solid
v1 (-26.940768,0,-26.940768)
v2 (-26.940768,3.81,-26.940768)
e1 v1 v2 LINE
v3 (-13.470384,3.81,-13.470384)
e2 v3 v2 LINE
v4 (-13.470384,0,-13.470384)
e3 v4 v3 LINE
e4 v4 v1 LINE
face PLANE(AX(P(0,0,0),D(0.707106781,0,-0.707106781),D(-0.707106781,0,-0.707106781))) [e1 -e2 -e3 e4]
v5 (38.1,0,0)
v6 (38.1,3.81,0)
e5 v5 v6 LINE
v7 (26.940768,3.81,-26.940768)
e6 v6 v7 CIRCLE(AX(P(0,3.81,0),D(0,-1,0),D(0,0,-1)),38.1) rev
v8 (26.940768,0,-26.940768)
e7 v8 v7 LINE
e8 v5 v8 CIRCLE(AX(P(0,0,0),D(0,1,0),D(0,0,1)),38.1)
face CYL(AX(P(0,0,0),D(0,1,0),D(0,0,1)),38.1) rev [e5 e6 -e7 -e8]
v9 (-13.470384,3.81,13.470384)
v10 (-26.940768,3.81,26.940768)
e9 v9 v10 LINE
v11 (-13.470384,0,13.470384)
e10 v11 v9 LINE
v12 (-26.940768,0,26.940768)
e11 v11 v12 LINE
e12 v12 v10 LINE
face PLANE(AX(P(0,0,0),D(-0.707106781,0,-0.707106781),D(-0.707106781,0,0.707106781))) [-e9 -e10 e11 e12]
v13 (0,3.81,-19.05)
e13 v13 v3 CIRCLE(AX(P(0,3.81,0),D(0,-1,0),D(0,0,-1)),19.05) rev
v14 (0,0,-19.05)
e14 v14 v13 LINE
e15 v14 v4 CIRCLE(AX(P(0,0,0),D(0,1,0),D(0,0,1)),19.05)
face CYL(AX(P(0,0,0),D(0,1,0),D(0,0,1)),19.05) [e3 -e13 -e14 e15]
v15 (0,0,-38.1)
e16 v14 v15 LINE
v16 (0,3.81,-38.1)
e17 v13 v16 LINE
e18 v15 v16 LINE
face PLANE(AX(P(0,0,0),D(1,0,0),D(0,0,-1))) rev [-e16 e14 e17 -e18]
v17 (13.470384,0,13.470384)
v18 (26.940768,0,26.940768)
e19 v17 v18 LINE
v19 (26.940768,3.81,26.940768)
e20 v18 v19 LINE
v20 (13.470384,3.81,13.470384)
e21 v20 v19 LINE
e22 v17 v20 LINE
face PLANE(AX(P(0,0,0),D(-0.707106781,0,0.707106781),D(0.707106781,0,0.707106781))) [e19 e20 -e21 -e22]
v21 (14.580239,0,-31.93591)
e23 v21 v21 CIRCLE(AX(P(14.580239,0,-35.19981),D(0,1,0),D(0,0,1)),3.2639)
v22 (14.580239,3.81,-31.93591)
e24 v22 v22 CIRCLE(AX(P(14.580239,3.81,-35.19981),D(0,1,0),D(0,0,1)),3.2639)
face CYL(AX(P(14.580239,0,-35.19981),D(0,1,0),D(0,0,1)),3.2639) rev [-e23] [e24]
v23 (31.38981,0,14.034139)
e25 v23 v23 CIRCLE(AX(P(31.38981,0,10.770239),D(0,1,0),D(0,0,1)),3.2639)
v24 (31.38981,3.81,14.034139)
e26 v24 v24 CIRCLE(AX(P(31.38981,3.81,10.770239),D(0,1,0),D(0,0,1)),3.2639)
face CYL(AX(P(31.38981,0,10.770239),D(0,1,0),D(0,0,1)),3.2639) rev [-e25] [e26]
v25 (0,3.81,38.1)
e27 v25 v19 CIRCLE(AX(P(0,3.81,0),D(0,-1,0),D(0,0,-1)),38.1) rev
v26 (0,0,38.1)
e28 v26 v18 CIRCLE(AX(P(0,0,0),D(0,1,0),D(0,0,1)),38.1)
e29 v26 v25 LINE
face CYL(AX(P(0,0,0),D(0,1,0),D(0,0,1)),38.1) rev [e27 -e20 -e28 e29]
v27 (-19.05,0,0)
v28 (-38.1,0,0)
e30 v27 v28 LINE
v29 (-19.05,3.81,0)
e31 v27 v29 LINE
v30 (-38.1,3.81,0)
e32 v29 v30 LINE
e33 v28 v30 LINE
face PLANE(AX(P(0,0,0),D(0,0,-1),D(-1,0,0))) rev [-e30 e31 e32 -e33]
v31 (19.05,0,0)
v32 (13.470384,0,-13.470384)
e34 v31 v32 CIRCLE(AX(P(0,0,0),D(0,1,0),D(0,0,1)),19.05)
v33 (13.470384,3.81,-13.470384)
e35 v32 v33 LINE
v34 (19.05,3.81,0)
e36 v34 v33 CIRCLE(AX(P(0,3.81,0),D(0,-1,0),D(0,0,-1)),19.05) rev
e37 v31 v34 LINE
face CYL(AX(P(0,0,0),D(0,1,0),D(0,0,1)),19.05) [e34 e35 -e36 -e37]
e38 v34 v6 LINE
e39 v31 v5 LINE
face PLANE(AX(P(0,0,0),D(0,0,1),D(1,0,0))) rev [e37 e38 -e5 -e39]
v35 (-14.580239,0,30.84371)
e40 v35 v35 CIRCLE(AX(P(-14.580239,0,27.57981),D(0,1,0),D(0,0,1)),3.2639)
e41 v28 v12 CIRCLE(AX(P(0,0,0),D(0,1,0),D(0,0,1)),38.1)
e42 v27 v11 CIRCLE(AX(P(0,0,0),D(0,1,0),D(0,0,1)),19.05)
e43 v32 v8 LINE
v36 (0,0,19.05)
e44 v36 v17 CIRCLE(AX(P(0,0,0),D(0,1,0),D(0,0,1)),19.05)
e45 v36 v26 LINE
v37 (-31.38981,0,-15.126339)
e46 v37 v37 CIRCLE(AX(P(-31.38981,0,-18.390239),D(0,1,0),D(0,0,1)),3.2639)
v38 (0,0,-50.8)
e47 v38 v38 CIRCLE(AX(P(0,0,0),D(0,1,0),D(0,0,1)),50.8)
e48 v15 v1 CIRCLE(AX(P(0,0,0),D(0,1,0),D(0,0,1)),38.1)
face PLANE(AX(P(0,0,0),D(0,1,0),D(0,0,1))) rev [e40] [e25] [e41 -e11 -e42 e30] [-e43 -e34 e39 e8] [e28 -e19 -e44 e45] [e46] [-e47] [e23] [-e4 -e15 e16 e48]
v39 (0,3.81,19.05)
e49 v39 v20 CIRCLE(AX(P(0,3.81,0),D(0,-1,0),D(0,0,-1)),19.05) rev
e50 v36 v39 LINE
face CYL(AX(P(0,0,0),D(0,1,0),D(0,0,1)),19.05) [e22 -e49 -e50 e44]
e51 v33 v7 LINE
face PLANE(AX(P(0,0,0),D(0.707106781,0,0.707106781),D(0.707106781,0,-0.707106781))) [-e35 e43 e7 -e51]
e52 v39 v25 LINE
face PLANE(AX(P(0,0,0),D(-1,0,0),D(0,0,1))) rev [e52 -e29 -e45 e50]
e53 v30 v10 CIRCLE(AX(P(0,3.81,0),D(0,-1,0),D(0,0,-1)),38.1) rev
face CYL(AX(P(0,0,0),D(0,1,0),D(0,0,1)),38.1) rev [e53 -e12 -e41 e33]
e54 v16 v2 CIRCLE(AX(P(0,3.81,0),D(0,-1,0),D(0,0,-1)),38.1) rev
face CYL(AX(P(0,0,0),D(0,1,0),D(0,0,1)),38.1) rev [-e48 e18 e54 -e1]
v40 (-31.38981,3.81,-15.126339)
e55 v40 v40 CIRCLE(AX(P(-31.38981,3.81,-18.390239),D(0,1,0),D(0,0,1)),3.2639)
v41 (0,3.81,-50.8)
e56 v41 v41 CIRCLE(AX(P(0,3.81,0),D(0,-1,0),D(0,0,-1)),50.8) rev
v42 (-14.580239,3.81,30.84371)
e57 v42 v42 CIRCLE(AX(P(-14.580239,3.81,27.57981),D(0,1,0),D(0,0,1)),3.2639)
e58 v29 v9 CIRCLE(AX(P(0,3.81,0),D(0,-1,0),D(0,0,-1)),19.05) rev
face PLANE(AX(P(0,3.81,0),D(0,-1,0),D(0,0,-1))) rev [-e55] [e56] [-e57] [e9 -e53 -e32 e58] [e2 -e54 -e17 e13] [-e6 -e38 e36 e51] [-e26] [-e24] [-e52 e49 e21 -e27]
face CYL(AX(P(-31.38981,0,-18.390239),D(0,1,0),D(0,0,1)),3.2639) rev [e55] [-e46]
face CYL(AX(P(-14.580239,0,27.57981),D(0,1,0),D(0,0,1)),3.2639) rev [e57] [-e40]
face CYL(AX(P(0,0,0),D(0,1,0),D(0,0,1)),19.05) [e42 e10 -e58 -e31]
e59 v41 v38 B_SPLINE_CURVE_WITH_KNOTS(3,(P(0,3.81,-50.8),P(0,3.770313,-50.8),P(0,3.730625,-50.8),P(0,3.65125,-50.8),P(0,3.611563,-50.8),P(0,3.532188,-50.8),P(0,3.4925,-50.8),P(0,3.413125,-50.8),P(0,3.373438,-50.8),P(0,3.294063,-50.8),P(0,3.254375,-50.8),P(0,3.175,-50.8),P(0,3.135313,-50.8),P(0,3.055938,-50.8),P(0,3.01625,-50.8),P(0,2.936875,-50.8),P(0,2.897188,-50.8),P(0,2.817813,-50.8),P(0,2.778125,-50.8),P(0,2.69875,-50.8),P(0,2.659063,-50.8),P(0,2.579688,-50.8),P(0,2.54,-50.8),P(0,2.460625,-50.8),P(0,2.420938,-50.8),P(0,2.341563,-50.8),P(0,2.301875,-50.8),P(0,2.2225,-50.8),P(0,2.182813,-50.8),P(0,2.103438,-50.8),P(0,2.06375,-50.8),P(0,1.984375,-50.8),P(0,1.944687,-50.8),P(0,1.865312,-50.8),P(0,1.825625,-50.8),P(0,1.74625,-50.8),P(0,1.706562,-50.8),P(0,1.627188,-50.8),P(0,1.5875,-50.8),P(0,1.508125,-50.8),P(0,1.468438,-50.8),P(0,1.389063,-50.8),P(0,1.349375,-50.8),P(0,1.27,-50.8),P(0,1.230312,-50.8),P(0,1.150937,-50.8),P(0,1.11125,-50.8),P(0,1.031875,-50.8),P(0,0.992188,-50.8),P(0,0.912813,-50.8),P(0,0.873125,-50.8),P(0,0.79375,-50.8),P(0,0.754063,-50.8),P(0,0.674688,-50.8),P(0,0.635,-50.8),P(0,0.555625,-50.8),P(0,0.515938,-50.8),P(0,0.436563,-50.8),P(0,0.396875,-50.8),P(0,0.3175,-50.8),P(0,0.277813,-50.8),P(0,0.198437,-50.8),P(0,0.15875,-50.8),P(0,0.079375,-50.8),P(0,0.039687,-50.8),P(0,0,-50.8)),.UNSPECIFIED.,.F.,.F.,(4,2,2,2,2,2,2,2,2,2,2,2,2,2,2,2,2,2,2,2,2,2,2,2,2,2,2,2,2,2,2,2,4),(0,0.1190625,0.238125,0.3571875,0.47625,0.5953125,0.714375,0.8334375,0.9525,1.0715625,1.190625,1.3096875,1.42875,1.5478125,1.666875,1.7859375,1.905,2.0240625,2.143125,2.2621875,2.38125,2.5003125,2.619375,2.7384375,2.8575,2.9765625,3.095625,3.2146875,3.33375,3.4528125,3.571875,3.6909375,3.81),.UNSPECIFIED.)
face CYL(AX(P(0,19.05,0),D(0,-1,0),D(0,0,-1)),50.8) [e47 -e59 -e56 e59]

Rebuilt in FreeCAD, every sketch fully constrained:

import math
import FreeCAD as App
import Part
import Sketcher
Q = App.Units.Quantity


def add_polygon(sketch, points):
    """Adds a closed chain of lines whose ends are joined by coincident constraints."""
    first, n = sketch.GeometryCount, len(points)
    for a, b in zip(points, points[1:] + points[:1]):
        sketch.addGeometry(Part.LineSegment(App.Vector(*a, 0), App.Vector(*b, 0)), False)
    for i in range(n):
        sketch.addConstraint(Sketcher.Constraint("Coincident", first + i, 2, first + (i + 1) % n, 1))

doc = App.newDocument("Part")
body = doc.addObject("PartDesign::Body", "Body")

sketch1 = body.newObject("Sketcher::SketchObject", "Sketch")
sketch1.AttachmentSupport = (doc.getObject("XZ_Plane"), [""])
sketch1.MapMode = "FlatFace"
sketch1.addGeometry(Part.Circle(App.Vector(0, 0, 0), App.Vector(0, 0, 1), 51), False)
sketch1.addConstraint([
    Sketcher.Constraint("Coincident", 0, 3, -1, 1),
    Sketcher.Constraint("Diameter", 0, Q("4 in")),
])
pad1 = body.newObject("PartDesign::Pad", "Pad")
pad1.Profile = sketch1
pad1.Length = Q("0.75 in")
pad1.Reversed = True

sketch2 = body.newObject("Sketcher::SketchObject", "Sketch001")
sketch2.AttachmentSupport = (doc.getObject("XZ_Plane"), [""])
sketch2.MapMode = "FlatFace"
sketch2.AttachmentOffset = App.Placement(App.Vector(0, 0, -0.75 * 25.4), App.Rotation())
add_polygon(sketch2, [(4, -6), (-4, -6), (-7, 0), (-4, 6), (4, 6), (7, 0)])
sketch2.addConstraint([
    Sketcher.Constraint("Horizontal", 0),
    Sketcher.Constraint("Horizontal", 3),
    Sketcher.Constraint("Symmetric", 0, 2, 3, 2, -1, 1),
    Sketcher.Constraint("Symmetric", 1, 2, 4, 2, -1, 1),
    Sketcher.Constraint("PointOnObject", 1, 2, -1),
    Sketcher.Constraint("Parallel", 2, 5),
    Sketcher.Constraint("Vertical", 0, 2, 2, 2),
    Sketcher.Constraint("Angle", 1, Q("120 deg")),
    Sketcher.Constraint("DistanceY", 0, 2, -1, 1, Q("0.24 in")),
    Sketcher.Constraint("DistanceX", 0, 2, 0, 1, 7.039054),
])
pocket1 = body.newObject("PartDesign::Pocket", "Pocket")
pocket1.Profile = sketch2
pocket1.Length = Q("0.6 in")
pocket1.Reversed = True

sketch3 = body.newObject("Sketcher::SketchObject", "Sketch002")
sketch3.AttachmentSupport = (doc.getObject("XZ_Plane"), [""])
sketch3.MapMode = "FlatFace"
sketch3.AttachmentOffset = App.Placement(App.Vector(0, 0, -0.15 * 25.4), App.Rotation())
sketch3.addGeometry(Part.Circle(App.Vector(0, 0, 0), App.Vector(0, 0, 1), 4.1), False)
sketch3.addConstraint([
    Sketcher.Constraint("Coincident", 0, 3, -1, 1),
    Sketcher.Constraint("Diameter", 0, Q("0.32 in")),
])
pocket2 = body.newObject("PartDesign::Pocket", "Pocket001")
pocket2.Profile = sketch3
pocket2.Type = "ThroughAll"
pocket2.Reversed = True

sketch4 = body.newObject("Sketcher::SketchObject", "Sketch003")
sketch4.AttachmentSupport = (doc.getObject("XZ_Plane"), [""])
sketch4.MapMode = "FlatFace"
sketch4.AttachmentOffset = App.Placement(App.Vector(0, 0, -0.75 * 25.4), App.Rotation())
sketch4.addGeometry([
    Part.ArcOfCircle(Part.Circle(App.Vector(0, 0, 0), App.Vector(0, 0, 1), 19), math.radians(-135), math.radians(-90)),
    Part.LineSegment(App.Vector(0, -19, 0), App.Vector(0, -38, 0)),
    Part.ArcOfCircle(Part.Circle(App.Vector(0, 0, 0), App.Vector(0, 0, 1), 38), math.radians(-135), math.radians(-90)),
    Part.LineSegment(App.Vector(-27, -27, 0), App.Vector(-13, -13, 0)),
    Part.LineSegment(App.Vector(27, -27, 0), App.Vector(13, -13, 0)),
    Part.ArcOfCircle(Part.Circle(App.Vector(0, 0, 0), App.Vector(0, 0, 1), 19), math.radians(-45), math.radians(0)),
    Part.LineSegment(App.Vector(19, 0, 0), App.Vector(38, 0, 0)),
    Part.ArcOfCircle(Part.Circle(App.Vector(0, 0, 0), App.Vector(0, 0, 1), 38), math.radians(-45), math.radians(0)),
    Part.LineSegment(App.Vector(27, 27, 0), App.Vector(13, 13, 0)),
    Part.ArcOfCircle(Part.Circle(App.Vector(0, 0, 0), App.Vector(0, 0, 1), 19), math.radians(45), math.radians(90)),
    Part.LineSegment(App.Vector(0, 19, 0), App.Vector(0, 38, 0)),
    Part.ArcOfCircle(Part.Circle(App.Vector(0, 0, 0), App.Vector(0, 0, 1), 38), math.radians(45), math.radians(90)),
    Part.LineSegment(App.Vector(-27, 27, 0), App.Vector(-13, 13, 0)),
    Part.ArcOfCircle(Part.Circle(App.Vector(0, 0, 0), App.Vector(0, 0, 1), 19), math.radians(135), math.radians(180)),
    Part.LineSegment(App.Vector(-19, 0, 0), App.Vector(-38, 0, 0)),
    Part.ArcOfCircle(Part.Circle(App.Vector(0, 0, 0), App.Vector(0, 0, 1), 38), math.radians(135), math.radians(180)),
], False)
sketch4.addConstraint([
    Sketcher.Constraint("Coincident", 0, 2, 1, 1),
    Sketcher.Constraint("Coincident", 1, 2, 2, 2),
    Sketcher.Constraint("Coincident", 2, 1, 3, 1),
    Sketcher.Constraint("Coincident", 3, 2, 0, 1),
    Sketcher.Constraint("Coincident", 4, 2, 5, 1),
    Sketcher.Constraint("Coincident", 5, 2, 6, 1),
    Sketcher.Constraint("Coincident", 6, 2, 7, 2),
    Sketcher.Constraint("Coincident", 7, 1, 4, 1),
    Sketcher.Constraint("Coincident", 8, 2, 9, 1),
    Sketcher.Constraint("Coincident", 9, 2, 10, 1),
    Sketcher.Constraint("Coincident", 10, 2, 11, 2),
    Sketcher.Constraint("Coincident", 11, 1, 8, 1),
    Sketcher.Constraint("Coincident", 12, 2, 13, 1),
    Sketcher.Constraint("Coincident", 13, 2, 14, 1),
    Sketcher.Constraint("Coincident", 14, 2, 15, 2),
    Sketcher.Constraint("Coincident", 15, 1, 12, 1),
    Sketcher.Constraint("Vertical", 1),
    Sketcher.Constraint("Horizontal", 6),
    Sketcher.Constraint("Vertical", 10),
    Sketcher.Constraint("Horizontal", 14),
    Sketcher.Constraint("Coincident", 0, 3, -1, 1),
    Sketcher.Constraint("Coincident", 2, 3, -1, 1),
    Sketcher.Constraint("Coincident", 5, 3, -1, 1),
    Sketcher.Constraint("Coincident", 7, 3, -1, 1),
    Sketcher.Constraint("Coincident", 9, 3, -1, 1),
    Sketcher.Constraint("Coincident", 11, 3, -1, 1),
    Sketcher.Constraint("Coincident", 13, 3, -1, 1),
    Sketcher.Constraint("Coincident", 15, 3, -1, 1),
    Sketcher.Constraint("Equal", 0, 5),
    Sketcher.Constraint("Equal", 2, 7),
    Sketcher.Constraint("Equal", 5, 9),
    Sketcher.Constraint("Equal", 7, 11),
    Sketcher.Constraint("Equal", 9, 13),
    Sketcher.Constraint("Equal", 11, 15),
    Sketcher.Constraint("PointOnObject", 0, 2, -2),
    Sketcher.Constraint("PointOnObject", 5, 2, -1),
    Sketcher.Constraint("PointOnObject", 9, 2, -2),
    Sketcher.Constraint("PointOnObject", 13, 2, -1),
    Sketcher.Constraint("Perpendicular", 3, 4),
    Sketcher.Constraint("Perpendicular", 4, 8),
    Sketcher.Constraint("Perpendicular", 8, 12),
    Sketcher.Constraint("Horizontal", 3, 2, 4, 2),
    Sketcher.Constraint("Horizontal", 2, 1, 7, 1),
    Sketcher.Constraint("Horizontal", 8, 2, 12, 2),
    Sketcher.Constraint("Vertical", 4, 2, 8, 2),
    Sketcher.Constraint("Radius", 2, Q("1.5 in")),
    Sketcher.Constraint("Radius", 0, Q("0.75 in")),
    Sketcher.Constraint("DistanceX", 2, 1, -1, 1, 26.940768),
])
pocket3 = body.newObject("PartDesign::Pocket", "Pocket002")
pocket3.Profile = sketch4
pocket3.Type = "ThroughAll"
pocket3.Reversed = True

sketch5 = body.newObject("Sketcher::SketchObject", "Sketch004")
sketch5.AttachmentSupport = (doc.getObject("XZ_Plane"), [""])
sketch5.MapMode = "FlatFace"
sketch5.AttachmentOffset = App.Placement(App.Vector(0, 0, -0.75 * 25.4), App.Rotation())
sketch5.addGeometry(Part.Circle(App.Vector(0, 0, 0), App.Vector(0, 0, 1), 48), False)
sketch5.addGeometry(Part.ArcOfCircle(Part.Circle(App.Vector(0, 0, 0), App.Vector(0, 0, 1), 41), math.radians(-139), math.radians(-86)), False)
sketch5.addGeometry(Part.LineSegment(App.Vector(3, -41, 0), App.Vector(3, -16, 0)), False)
sketch5.addGeometry(Part.ArcOfCircle(Part.Circle(App.Vector(0, 0, 0), App.Vector(0, 0, 1), 17), math.radians(-144), math.radians(-81)), False)
sketch5.addGeometry(Part.LineSegment(App.Vector(-13, -10, 0), App.Vector(-30, -27, 0)), False)
sketch5.addGeometry(Part.LineSegment(App.Vector(-41, -3, 0), App.Vector(-16, -3, 0)), False)
sketch5.addGeometry(Part.ArcOfCircle(Part.Circle(App.Vector(0, 0, 0), App.Vector(0, 0, 1), 17), math.radians(126), math.radians(189)), False)
sketch5.addGeometry(Part.LineSegment(App.Vector(-10, 13, 0), App.Vector(-27, 30, 0)), False)
sketch5.addGeometry(Part.ArcOfCircle(Part.Circle(App.Vector(0, 0, 0), App.Vector(0, 0, 1), 41), math.radians(131), math.radians(184)), False)
sketch5.addGeometry(Part.LineSegment(App.Vector(41, 3, 0), App.Vector(16, 3, 0)), False)
sketch5.addGeometry(Part.ArcOfCircle(Part.Circle(App.Vector(0, 0, 0), App.Vector(0, 0, 1), 17), math.radians(-54), math.radians(9)), False)
sketch5.addGeometry(Part.LineSegment(App.Vector(10, -13, 0), App.Vector(27, -30, 0)), False)
sketch5.addGeometry(Part.ArcOfCircle(Part.Circle(App.Vector(0, 0, 0), App.Vector(0, 0, 1), 41), math.radians(-49), math.radians(4)), False)
add_polygon(sketch5, [(-5, -9), (5, -9), (10, 0), (5, 9), (-5, 9), (-10, 0)])
sketch5.addGeometry(Part.LineSegment(App.Vector(-3, 41, 0), App.Vector(-3, 16, 0)), False)
sketch5.addGeometry(Part.ArcOfCircle(Part.Circle(App.Vector(0, 0, 0), App.Vector(0, 0, 1), 17), math.radians(36), math.radians(99)), False)
sketch5.addGeometry(Part.LineSegment(App.Vector(13, 10, 0), App.Vector(30, 27, 0)), False)
sketch5.addGeometry(Part.ArcOfCircle(Part.Circle(App.Vector(0, 0, 0), App.Vector(0, 0, 1), 41), math.radians(41), math.radians(94)), False)
sketch5.addConstraint([
    Sketcher.Constraint("Coincident", 1, 2, 2, 1),
    Sketcher.Constraint("Coincident", 2, 2, 3, 2),
    Sketcher.Constraint("Coincident", 3, 1, 4, 1),
    Sketcher.Constraint("Coincident", 4, 2, 1, 1),
    Sketcher.Constraint("Coincident", 5, 2, 6, 2),
    Sketcher.Constraint("Coincident", 6, 1, 7, 1),
    Sketcher.Constraint("Coincident", 7, 2, 8, 1),
    Sketcher.Constraint("Coincident", 8, 2, 5, 1),
    Sketcher.Constraint("Coincident", 9, 2, 10, 2),
    Sketcher.Constraint("Coincident", 10, 1, 11, 1),
    Sketcher.Constraint("Coincident", 11, 2, 12, 1),
    Sketcher.Constraint("Coincident", 12, 2, 9, 1),
    Sketcher.Constraint("Coincident", 19, 2, 20, 2),
    Sketcher.Constraint("Coincident", 20, 1, 21, 1),
    Sketcher.Constraint("Coincident", 21, 2, 22, 1),
    Sketcher.Constraint("Coincident", 22, 2, 19, 1),
    Sketcher.Constraint("Vertical", 2),
    Sketcher.Constraint("Horizontal", 5),
    Sketcher.Constraint("Horizontal", 9),
    Sketcher.Constraint("Horizontal", 13),
    Sketcher.Constraint("Horizontal", 16),
    Sketcher.Constraint("Vertical", 19),
    Sketcher.Constraint("Coincident", 0, 3, -1, 1),
    Sketcher.Constraint("Coincident", 1, 3, -1, 1),
    Sketcher.Constraint("Coincident", 3, 3, -1, 1),
    Sketcher.Constraint("Coincident", 6, 3, -1, 1),
    Sketcher.Constraint("Coincident", 8, 3, -1, 1),
    Sketcher.Constraint("Coincident", 10, 3, -1, 1),
    Sketcher.Constraint("Coincident", 12, 3, -1, 1),
    Sketcher.Constraint("Coincident", 20, 3, -1, 1),
    Sketcher.Constraint("Coincident", 22, 3, -1, 1),
    Sketcher.Constraint("Equal", 3, 6),
    Sketcher.Constraint("Equal", 1, 8),
    Sketcher.Constraint("Equal", 6, 10),
    Sketcher.Constraint("Equal", 8, 12),
    Sketcher.Constraint("Equal", 10, 20),
    Sketcher.Constraint("Equal", 12, 22),
    Sketcher.Constraint("Symmetric", 13, 2, 16, 2, -1, 1),
    Sketcher.Constraint("Symmetric", 14, 2, 17, 2, -1, 1),
    Sketcher.Constraint("PointOnObject", 14, 2, -1),
    Sketcher.Constraint("Perpendicular", 4, 7),
    Sketcher.Constraint("Parallel", 7, 11),
    Sketcher.Constraint("Parallel", 15, 18),
    Sketcher.Constraint("Perpendicular", 11, 21),
    Sketcher.Constraint("Vertical", 13, 2, 15, 2),
    Sketcher.Constraint("Equal", 5, 9),
    Sketcher.Constraint("Equal", 9, 2),
    Sketcher.Constraint("Equal", 2, 19),
    Sketcher.Constraint("Equal", 4, 7),
    Sketcher.Constraint("Equal", 7, 11),
    Sketcher.Constraint("Equal", 11, 21),
    Sketcher.Constraint("Diameter", 0, Q("3.8 in")),
    Sketcher.Constraint("Radius", 1, Q("1.6 in")),
    Sketcher.Constraint("Radius", 3, Q("0.65 in")),
    Sketcher.Constraint("Angle", 4, Q("-135 deg")),
    Sketcher.Constraint("Angle", 14, Q("60 deg")),
    Sketcher.Constraint("DistanceX", -1, 1, 1, 2, Q("0.1 in")),
    Sketcher.Constraint("DistanceY", 13, 2, -1, 1, Q("0.34 in")),
    Sketcher.Constraint("Distance", 4, 24.247102),
    Sketcher.Constraint("DistanceX", 13, 2, 10, 1, 4.7533),
])
pocket4 = body.newObject("PartDesign::Pocket", "Pocket003")
pocket4.Profile = sketch5
pocket4.Length = Q("0.6 in")
pocket4.Reversed = True

sketch6 = body.newObject("Sketcher::SketchObject", "Sketch005")
sketch6.AttachmentSupport = (doc.getObject("XZ_Plane"), [""])
sketch6.MapMode = "FlatFace"
sketch6.AttachmentOffset = App.Placement(App.Vector(0, 0, -0.15 * 25.4), App.Rotation())
sketch6.addGeometry([
    Part.Circle(App.Vector(14.6, -35.2, 0), App.Vector(0, 0, 1), 3.3),
    Part.Circle(App.Vector(31.4, 10.8, 0), App.Vector(0, 0, 1), 3.3),
    Part.Circle(App.Vector(-14.6, 27.6, 0), App.Vector(0, 0, 1), 3.3),
    Part.Circle(App.Vector(-31.4, -18.4, 0), App.Vector(0, 0, 1), 3.3),
], False)
sketch6.addConstraint([
    Sketcher.Constraint("Equal", 0, 1),
    Sketcher.Constraint("Equal", 1, 2),
    Sketcher.Constraint("Equal", 2, 3),
    Sketcher.Constraint("Diameter", 0, Q("0.257 in")),
    Sketcher.Constraint("DistanceX", -1, 1, 0, 3, 14.580239),
    Sketcher.Constraint("DistanceY", 0, 3, -1, 1, 35.19981),
    Sketcher.Constraint("DistanceX", -1, 1, 1, 3, 31.38981),
    Sketcher.Constraint("DistanceY", -1, 1, 1, 3, 10.770239),
    Sketcher.Constraint("DistanceX", 2, 3, -1, 1, 14.580239),
    Sketcher.Constraint("DistanceY", -1, 1, 2, 3, 27.57981),
    Sketcher.Constraint("DistanceX", 3, 3, -1, 1, 31.38981),
    Sketcher.Constraint("DistanceY", 3, 3, -1, 1, 18.390239),
])
pocket5 = body.newObject("PartDesign::Pocket", "Pocket004")
pocket5.Profile = sketch6
pocket5.Type = "ThroughAll"
pocket5.Reversed = True

sketch7 = body.newObject("Sketcher::SketchObject", "Sketch006")
sketch7.AttachmentSupport = (doc.getObject("XZ_Plane"), [""])
sketch7.MapMode = "FlatFace"
sketch7.AttachmentOffset = App.Placement(App.Vector(0, 0, -0.15 * 25.4), App.Rotation())
sketch7.addGeometry(Part.Circle(App.Vector(0, 0, 0), App.Vector(0, 0, 1), 51), False)
sketch7.addConstraint([
    Sketcher.Constraint("Coincident", 0, 3, -1, 1),
    Sketcher.Constraint("Diameter", 0, Q("4 in")),
])
pocket6 = body.newObject("PartDesign::Pocket", "Pocket005")
pocket6.Profile = sketch7
pocket6.Length = Q("0.6 in")

sketch8 = body.newObject("Sketcher::SketchObject", "Sketch007")
sketch8.AttachmentSupport = (doc.getObject("XZ_Plane"), [""])
sketch8.MapMode = "FlatFace"
sketch8.AttachmentOffset = App.Placement(App.Vector(0, 0, -0.15 * 25.4), App.Rotation())
sketch8.addGeometry(Part.Circle(App.Vector(0, 0, 0), App.Vector(0, 0, 1), 6), False)
sketch8.addConstraint([
    Sketcher.Constraint("Coincident", 0, 3, -1, 1),
    Sketcher.Constraint("Diameter", 0, 12.431972),
])
pad2 = body.newObject("PartDesign::Pad", "Pad001")
pad2.Profile = sketch8
pad2.Length = Q("0.15 in")

doc.recompute()
